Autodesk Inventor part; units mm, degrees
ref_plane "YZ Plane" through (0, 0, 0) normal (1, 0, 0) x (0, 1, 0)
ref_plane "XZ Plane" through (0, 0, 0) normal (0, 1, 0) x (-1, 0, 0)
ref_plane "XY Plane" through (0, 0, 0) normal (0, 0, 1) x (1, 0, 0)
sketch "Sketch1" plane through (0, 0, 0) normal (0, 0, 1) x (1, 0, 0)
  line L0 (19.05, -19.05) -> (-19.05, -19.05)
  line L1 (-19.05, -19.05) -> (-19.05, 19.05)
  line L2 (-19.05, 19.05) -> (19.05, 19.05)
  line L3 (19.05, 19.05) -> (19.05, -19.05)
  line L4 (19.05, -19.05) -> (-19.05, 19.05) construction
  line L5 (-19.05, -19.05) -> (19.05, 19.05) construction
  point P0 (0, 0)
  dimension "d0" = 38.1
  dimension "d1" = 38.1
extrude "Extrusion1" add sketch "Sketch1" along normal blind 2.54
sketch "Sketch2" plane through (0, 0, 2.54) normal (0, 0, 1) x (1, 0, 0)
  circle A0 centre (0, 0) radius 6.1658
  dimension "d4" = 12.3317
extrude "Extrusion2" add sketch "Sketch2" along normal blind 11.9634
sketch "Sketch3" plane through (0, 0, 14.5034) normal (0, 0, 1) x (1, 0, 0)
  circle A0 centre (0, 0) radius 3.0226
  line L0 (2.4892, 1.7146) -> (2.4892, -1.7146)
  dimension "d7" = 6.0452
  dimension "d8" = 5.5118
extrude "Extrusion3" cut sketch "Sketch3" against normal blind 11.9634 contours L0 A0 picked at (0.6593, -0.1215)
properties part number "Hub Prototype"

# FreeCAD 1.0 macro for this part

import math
import FreeCAD as App
import Part
import Sketcher
Q = App.Units.Quantity

doc = App.newDocument("Part")
params = doc.addObject("Spreadsheet::Sheet", "Params")
for row, (alias, value) in enumerate([
    ("sketch1_width", "1.5 in"),
    ("pad1_length", "0.1 in"),
    ("pad2_length", "0.471 in"),
    ("sketch3_radius", "0.119 in"),
    ("sketch3_height", "0.135 in"),
    ("pocket1_length", "0.471 in"),
], start=1):
    params.set(f"A{row}", alias)
    params.set(f"B{row}", "=" + value)
    params.setAlias(f"B{row}", alias)

body = doc.addObject("PartDesign::Body", "Body")

sketch1 = body.newObject("Sketcher::SketchObject", "Sketch")
sketch1.AttachmentSupport = (doc.getObject("XY_Plane"), [""])
sketch1.MapMode = "FlatFace"
sketch1.addGeometry([
    Part.LineSegment(App.Vector(-19.05, -19.05, 0), App.Vector(19.05, -19.05, 0)),
    Part.LineSegment(App.Vector(19.05, -19.05, 0), App.Vector(19.05, 19.05, 0)),
    Part.LineSegment(App.Vector(19.05, 19.05, 0), App.Vector(-19.05, 19.05, 0)),
    Part.LineSegment(App.Vector(-19.05, 19.05, 0), App.Vector(-19.05, -19.05, 0)),
], False)
sketch1.addConstraint([
    Sketcher.Constraint("Coincident", 0, 2, 1, 1),
    Sketcher.Constraint("Coincident", 1, 2, 2, 1),
    Sketcher.Constraint("Coincident", 2, 2, 3, 1),
    Sketcher.Constraint("Coincident", 3, 2, 0, 1),
    Sketcher.Constraint("Horizontal", 0),
    Sketcher.Constraint("Vertical", 1),
    Sketcher.Constraint("Horizontal", 2),
    Sketcher.Constraint("Vertical", 3),
    Sketcher.Constraint("Symmetric", 0, 2, 2, 2, -1, 1),
    Sketcher.Constraint("Equal", 2, 1),
    Sketcher.Constraint("DistanceX", 0, 1, 0, 2, Q("1.5 in")),
])
sketch1.setExpression("Constraints[10]", "Params.sketch1_width")
pad1 = body.newObject("PartDesign::Pad", "Pad")
pad1.Profile = sketch1
pad1.setExpression("Length", "Params.pad1_length")

sketch2 = body.newObject("Sketcher::SketchObject", "Sketch001")
sketch2.AttachmentSupport = (doc.getObject("XY_Plane"), [""])
sketch2.MapMode = "FlatFace"
sketch2.AttachmentOffset = App.Placement(App.Vector(0, 0, 0.1 * 25.4), App.Rotation())
sketch2.addGeometry(Part.Circle(App.Vector(0, 0, 0), App.Vector(0, 0, 1), 6.1658), False)
sketch2.addConstraint([
    Sketcher.Constraint("Coincident", 0, 3, -1, 1),
    Sketcher.Constraint("Diameter", 0, Q("0.4855 in")),
])
pad2 = body.newObject("PartDesign::Pad", "Pad001")
pad2.Profile = sketch2
pad2.setExpression("Length", "Params.pad2_length")

sketch3 = body.newObject("Sketcher::SketchObject", "Sketch002")
sketch3.AttachmentSupport = (doc.getObject("XY_Plane"), [""])
sketch3.MapMode = "FlatFace"
sketch3.AttachmentOffset = App.Placement(App.Vector(0, 0, 0.571 * 25.4), App.Rotation())
sketch3.addGeometry([
    Part.LineSegment(App.Vector(2.4892, -1.7146, 0), App.Vector(2.4892, 1.7146, 0)),
    Part.ArcOfCircle(Part.Circle(App.Vector(0, 0, 0), App.Vector(0, 0, 1), 3.0226), math.radians(34.55968), math.radians(325.44032)),
], False)
sketch3.addConstraint([
    Sketcher.Constraint("Coincident", 0, 1, 1, 2),
    Sketcher.Constraint("Coincident", 1, 1, 0, 2),
    Sketcher.Constraint("Vertical", 0),
    Sketcher.Constraint("Coincident", 1, 3, -1, 1),
    Sketcher.Constraint("Radius", 1, Q("0.119 in")),
    Sketcher.Constraint("DistanceY", 0, 1, 0, 2, Q("0.135 in")),
])
sketch3.setExpression("Constraints[4]", "Params.sketch3_radius")
sketch3.setExpression("Constraints[5]", "Params.sketch3_height")
pocket1 = body.newObject("PartDesign::Pocket", "Pocket")
pocket1.Profile = sketch3
pocket1.setExpression("Length", "Params.pocket1_length")

doc.recompute()
